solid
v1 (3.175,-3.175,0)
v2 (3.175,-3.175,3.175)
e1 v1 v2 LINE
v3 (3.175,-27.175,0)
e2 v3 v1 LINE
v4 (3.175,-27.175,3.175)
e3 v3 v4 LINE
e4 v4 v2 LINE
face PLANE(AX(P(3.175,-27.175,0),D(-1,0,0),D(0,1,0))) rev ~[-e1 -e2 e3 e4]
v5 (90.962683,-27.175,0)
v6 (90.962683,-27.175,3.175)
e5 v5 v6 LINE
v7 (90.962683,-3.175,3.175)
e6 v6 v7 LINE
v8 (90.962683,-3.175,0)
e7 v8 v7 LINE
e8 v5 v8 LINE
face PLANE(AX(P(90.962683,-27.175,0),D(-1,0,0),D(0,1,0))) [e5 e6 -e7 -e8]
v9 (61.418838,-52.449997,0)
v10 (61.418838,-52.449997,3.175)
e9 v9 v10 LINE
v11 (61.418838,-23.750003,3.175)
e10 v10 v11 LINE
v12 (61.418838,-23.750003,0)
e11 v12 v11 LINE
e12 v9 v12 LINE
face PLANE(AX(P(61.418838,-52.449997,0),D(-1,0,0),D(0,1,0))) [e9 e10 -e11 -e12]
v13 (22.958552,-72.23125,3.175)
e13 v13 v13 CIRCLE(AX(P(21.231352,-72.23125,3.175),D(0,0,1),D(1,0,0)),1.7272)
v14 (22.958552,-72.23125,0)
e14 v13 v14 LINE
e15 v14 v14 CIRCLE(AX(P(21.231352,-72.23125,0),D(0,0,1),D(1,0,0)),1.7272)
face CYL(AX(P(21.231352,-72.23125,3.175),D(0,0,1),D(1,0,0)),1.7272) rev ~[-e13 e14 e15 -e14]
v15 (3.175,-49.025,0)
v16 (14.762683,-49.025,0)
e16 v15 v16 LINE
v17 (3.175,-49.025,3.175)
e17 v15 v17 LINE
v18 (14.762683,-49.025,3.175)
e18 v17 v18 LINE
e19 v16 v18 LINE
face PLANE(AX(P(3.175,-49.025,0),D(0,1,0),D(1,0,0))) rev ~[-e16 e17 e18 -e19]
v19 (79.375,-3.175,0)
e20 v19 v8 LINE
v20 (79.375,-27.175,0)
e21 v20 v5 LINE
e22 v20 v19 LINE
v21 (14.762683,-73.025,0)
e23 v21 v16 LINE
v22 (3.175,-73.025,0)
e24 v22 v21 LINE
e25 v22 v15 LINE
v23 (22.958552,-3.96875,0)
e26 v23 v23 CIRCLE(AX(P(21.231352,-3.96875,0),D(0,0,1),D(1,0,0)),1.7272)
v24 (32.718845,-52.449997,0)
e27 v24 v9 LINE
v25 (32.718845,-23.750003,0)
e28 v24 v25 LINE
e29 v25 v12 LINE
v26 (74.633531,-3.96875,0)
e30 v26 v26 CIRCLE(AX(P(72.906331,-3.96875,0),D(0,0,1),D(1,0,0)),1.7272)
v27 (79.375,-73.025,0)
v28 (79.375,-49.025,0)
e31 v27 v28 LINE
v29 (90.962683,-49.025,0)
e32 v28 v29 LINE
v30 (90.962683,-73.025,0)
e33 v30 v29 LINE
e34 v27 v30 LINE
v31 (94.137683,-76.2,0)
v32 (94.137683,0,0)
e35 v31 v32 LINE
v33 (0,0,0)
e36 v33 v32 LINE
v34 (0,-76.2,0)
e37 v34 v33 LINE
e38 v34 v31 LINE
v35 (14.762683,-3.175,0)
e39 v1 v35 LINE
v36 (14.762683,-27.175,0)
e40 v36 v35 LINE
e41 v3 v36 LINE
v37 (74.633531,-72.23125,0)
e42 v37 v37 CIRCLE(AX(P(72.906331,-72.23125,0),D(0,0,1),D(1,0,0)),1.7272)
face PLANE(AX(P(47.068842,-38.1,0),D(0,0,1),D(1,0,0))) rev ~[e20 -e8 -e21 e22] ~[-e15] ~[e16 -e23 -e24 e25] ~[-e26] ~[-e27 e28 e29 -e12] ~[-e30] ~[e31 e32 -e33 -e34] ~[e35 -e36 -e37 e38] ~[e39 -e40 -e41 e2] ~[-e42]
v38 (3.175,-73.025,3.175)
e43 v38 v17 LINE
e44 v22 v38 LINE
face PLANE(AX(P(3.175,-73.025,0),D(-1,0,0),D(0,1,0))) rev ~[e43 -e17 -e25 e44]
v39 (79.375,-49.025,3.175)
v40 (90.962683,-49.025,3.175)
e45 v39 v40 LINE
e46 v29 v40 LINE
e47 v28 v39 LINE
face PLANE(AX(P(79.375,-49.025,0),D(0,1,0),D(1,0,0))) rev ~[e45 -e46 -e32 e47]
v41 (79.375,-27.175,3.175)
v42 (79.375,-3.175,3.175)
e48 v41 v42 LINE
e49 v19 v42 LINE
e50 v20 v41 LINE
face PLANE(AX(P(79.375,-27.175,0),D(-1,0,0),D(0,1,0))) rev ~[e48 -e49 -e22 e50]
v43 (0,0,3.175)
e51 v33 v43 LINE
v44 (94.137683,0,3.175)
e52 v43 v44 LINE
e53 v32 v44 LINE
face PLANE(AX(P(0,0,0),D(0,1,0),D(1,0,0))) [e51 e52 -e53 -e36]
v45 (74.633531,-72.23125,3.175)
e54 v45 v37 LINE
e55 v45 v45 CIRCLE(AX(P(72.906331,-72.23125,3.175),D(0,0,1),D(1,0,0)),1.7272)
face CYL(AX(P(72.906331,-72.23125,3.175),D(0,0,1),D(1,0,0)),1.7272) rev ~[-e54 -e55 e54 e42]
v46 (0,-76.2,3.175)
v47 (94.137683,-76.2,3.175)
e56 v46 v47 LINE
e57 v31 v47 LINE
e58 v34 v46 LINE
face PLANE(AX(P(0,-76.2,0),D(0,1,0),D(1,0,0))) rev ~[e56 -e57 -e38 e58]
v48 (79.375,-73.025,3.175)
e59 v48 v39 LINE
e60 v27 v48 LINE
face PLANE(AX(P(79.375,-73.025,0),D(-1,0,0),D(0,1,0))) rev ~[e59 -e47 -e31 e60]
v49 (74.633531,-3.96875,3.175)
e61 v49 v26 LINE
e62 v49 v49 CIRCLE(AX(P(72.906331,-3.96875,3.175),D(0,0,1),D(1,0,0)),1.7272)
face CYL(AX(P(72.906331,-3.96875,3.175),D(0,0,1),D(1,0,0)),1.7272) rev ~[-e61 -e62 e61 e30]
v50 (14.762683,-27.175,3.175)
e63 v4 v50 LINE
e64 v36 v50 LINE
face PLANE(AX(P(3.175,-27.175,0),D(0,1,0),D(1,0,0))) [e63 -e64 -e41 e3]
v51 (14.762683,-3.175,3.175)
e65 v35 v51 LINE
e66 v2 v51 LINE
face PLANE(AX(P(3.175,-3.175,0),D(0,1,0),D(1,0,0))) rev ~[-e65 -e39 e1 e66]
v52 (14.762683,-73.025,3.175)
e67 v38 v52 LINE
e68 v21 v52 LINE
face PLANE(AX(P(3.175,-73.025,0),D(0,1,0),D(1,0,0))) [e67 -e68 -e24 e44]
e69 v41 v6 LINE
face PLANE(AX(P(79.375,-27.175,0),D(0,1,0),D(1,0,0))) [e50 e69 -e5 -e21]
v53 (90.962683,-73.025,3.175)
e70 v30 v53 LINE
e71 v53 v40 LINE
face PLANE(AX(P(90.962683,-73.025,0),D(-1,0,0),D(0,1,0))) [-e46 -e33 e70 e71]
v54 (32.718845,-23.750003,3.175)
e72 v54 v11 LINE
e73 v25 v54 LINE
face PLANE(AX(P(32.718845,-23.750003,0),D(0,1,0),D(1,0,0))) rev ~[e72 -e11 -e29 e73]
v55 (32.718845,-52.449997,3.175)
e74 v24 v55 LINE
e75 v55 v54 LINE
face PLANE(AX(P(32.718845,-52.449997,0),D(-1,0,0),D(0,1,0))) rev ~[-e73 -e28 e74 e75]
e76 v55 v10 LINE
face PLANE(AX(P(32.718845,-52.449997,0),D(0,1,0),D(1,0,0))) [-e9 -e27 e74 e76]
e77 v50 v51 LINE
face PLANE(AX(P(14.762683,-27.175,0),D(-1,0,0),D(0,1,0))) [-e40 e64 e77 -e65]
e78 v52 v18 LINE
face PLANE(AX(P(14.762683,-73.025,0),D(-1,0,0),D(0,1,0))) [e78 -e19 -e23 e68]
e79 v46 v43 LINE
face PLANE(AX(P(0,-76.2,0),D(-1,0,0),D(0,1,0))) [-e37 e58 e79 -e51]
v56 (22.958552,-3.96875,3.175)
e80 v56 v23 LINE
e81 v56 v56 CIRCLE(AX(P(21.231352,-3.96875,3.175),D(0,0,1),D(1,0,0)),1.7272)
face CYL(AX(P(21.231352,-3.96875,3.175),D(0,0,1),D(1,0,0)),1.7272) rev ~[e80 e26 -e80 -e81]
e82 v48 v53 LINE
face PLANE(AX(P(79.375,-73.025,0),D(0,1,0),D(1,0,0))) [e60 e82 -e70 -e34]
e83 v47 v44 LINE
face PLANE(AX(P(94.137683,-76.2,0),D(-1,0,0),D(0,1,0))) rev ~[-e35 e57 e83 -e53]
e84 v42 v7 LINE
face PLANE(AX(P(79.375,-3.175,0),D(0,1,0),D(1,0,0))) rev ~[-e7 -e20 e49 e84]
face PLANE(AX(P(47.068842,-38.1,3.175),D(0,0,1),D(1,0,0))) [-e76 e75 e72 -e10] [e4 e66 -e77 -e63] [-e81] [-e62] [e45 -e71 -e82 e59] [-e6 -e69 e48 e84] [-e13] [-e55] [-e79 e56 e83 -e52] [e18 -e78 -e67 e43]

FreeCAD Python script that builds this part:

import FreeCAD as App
import Part
import Sketcher
Q = App.Units.Quantity


def add_polygon(sketch, points):
    """Adds a closed chain of lines whose ends are joined by coincident constraints."""
    first, n = sketch.GeometryCount, len(points)
    for a, b in zip(points, points[1:] + points[:1]):
        sketch.addGeometry(Part.LineSegment(App.Vector(*a, 0), App.Vector(*b, 0)), False)
    for i in range(n):
        sketch.addConstraint(Sketcher.Constraint("Coincident", first + i, 2, first + (i + 1) % n, 1))

doc = App.newDocument("Part")
body = doc.addObject("PartDesign::Body", "Body")

# Sketch on XY plane
sketch1 = body.newObject("Sketcher::SketchObject", "Sketch")
sketch1.AttachmentSupport = (doc.getObject("XY_Plane"), [""])
sketch1.MapMode = "FlatFace"
add_polygon(sketch1, [(0, 0), (0, -76), (94, -76), (94, 0)])  # lines 0-3
add_polygon(sketch1, [(15, -73), (3, -73), (3, -49), (15, -49)])  # lines 4-7
add_polygon(sketch1, [(91, -73), (79, -73), (79, -49), (91, -49)])  # lines 8-11
add_polygon(sketch1, [(15, -27), (3, -27), (3, -3), (15, -3)])  # lines 12-15
add_polygon(sketch1, [(61, -52), (33, -52), (33, -24), (61, -24)])  # lines 16-19
add_polygon(sketch1, [(91, -27), (79, -27), (79, -3), (91, -3)])  # lines 20-23
sketch1.addConstraint([
    Sketcher.Constraint("Vertical", 0),
    Sketcher.Constraint("Horizontal", 1),
    Sketcher.Constraint("Vertical", 2),
    Sketcher.Constraint("Horizontal", 3),
    Sketcher.Constraint("Horizontal", 4),
    Sketcher.Constraint("Vertical", 5),
    Sketcher.Constraint("Horizontal", 6),
    Sketcher.Constraint("Vertical", 7),
    Sketcher.Constraint("Horizontal", 8),
    Sketcher.Constraint("Vertical", 9),
    Sketcher.Constraint("Horizontal", 10),
    Sketcher.Constraint("Vertical", 11),
    Sketcher.Constraint("Horizontal", 12),
    Sketcher.Constraint("Vertical", 13),
    Sketcher.Constraint("Horizontal", 14),
    Sketcher.Constraint("Vertical", 15),
    Sketcher.Constraint("Horizontal", 16),
    Sketcher.Constraint("Vertical", 17),
    Sketcher.Constraint("Horizontal", 18),
    Sketcher.Constraint("Vertical", 19),
    Sketcher.Constraint("Horizontal", 20),
    Sketcher.Constraint("Vertical", 21),
    Sketcher.Constraint("Horizontal", 22),
    Sketcher.Constraint("Vertical", 23),
    Sketcher.Constraint("Coincident", 3, 2, -1, 1),
    Sketcher.Constraint("Horizontal", 7, 2, 8, 2),
    Sketcher.Constraint("Horizontal", 6, 2, 9, 2),
    Sketcher.Constraint("Horizontal", 15, 2, 20, 2),
    Sketcher.Constraint("Horizontal", 14, 2, 21, 2),
    Sketcher.Constraint("Vertical", 5, 2, 12, 2),
    Sketcher.Constraint("Vertical", 7, 2, 14, 2),
    Sketcher.Constraint("Vertical", 9, 2, 20, 2),
    Sketcher.Constraint("Vertical", 11, 2, 22, 2),
    Sketcher.Constraint("Equal", 6, 8),
    Sketcher.Constraint("Equal", 11, 13),
    Sketcher.Constraint("Equal", 18, 17),
    Sketcher.Constraint("DistanceY", 0, 2, 0, 1, Q("3 in")),
    Sketcher.Constraint("DistanceX", 4, 2, 8, 2, Q("3 in")),
    Sketcher.Constraint("DistanceY", 4, 2, 13, 2, Q("2.75 in")),
    Sketcher.Constraint("DistanceX", -1, 1, 4, 2, Q("0.125 in")),
    Sketcher.Constraint("DistanceY", 4, 2, -1, 1, Q("2.875 in")),
    Sketcher.Constraint("DistanceX", 6, 2, 1, 2, Q("3.125 in")),
    Sketcher.Constraint("DistanceY", 5, 1, 5, 2, Q("24 mm")),
    Sketcher.Constraint("DistanceX", 1, 1, 1, 2, Q("94.137683 mm")),
    Sketcher.Constraint("DistanceX", 16, 2, 16, 1, Q("28.699993 mm")),
    Sketcher.Constraint("DistanceX", -1, 1, 18, 2, Q("61.418838 mm")),
    Sketcher.Constraint("DistanceY", 16, 2, -1, 1, Q("52.449997 mm")),
])
pad1 = body.newObject("PartDesign::Pad", "Pad")
pad1.Profile = sketch1
pad1.Length = Q("0.125 in")

# Sketch on XY plane
sketch2 = body.newObject("Sketcher::SketchObject", "Sketch001")
sketch2.AttachmentSupport = (doc.getObject("XY_Plane"), [""])
sketch2.MapMode = "FlatFace"
sketch2.AttachmentOffset = App.Placement(App.Vector(0, 0, 0.125 * 25.4), App.Rotation())
sketch2.addGeometry([
    Part.Circle(App.Vector(21.2, -4, 0), App.Vector(0, 0, 1), 1.7),
    Part.Circle(App.Vector(72.9, -4, 0), App.Vector(0, 0, 1), 1.7),
    Part.Circle(App.Vector(72.9, -72.2, 0), App.Vector(0, 0, 1), 1.7),
    Part.Circle(App.Vector(21.2, -72.2, 0), App.Vector(0, 0, 1), 1.7),
], False)
sketch2.addConstraint([
    Sketcher.Constraint("Equal", 0, 1),
    Sketcher.Constraint("Equal", 1, 2),
    Sketcher.Constraint("Equal", 2, 3),
    Sketcher.Constraint("Horizontal", 0, 3, 1, 3),
    Sketcher.Constraint("Horizontal", 2, 3, 3, 3),
    Sketcher.Constraint("Vertical", 1, 3, 2, 3),
    Sketcher.Constraint("Vertical", 0, 3, 3, 3),
    Sketcher.Constraint("Diameter", 0, Q("0.136 in")),
    Sketcher.Constraint("DistanceY", 0, 3, -1, 1, Q("0.15625 in")),
    Sketcher.Constraint("DistanceY", 2, 3, -1, 1, Q("2.84375 in")),
    Sketcher.Constraint("DistanceX", -1, 1, 1, 3, Q("72.906331 mm")),
    Sketcher.Constraint("DistanceX", 0, 3, 1, 3, Q("51.674979 mm")),
])
pocket1 = body.newObject("PartDesign::Pocket", "Pocket")
pocket1.Profile = sketch2
pocket1.Type = "ThroughAll"

doc.recompute()
